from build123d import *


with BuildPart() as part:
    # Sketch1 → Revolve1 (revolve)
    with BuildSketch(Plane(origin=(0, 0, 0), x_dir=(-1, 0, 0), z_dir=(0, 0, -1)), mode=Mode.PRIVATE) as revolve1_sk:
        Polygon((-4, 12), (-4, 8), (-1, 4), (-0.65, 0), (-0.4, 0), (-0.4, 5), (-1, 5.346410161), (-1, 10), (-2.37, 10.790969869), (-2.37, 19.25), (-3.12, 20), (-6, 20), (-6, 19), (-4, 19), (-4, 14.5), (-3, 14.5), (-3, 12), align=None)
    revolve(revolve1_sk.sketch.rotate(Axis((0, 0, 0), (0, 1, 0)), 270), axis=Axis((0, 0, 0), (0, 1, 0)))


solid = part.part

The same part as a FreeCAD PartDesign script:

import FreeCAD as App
import Part
import Sketcher
Q = App.Units.Quantity


def add_polygon(sketch, points):
    """Adds a closed chain of lines whose ends are joined by coincident constraints."""
    first, n = sketch.GeometryCount, len(points)
    for a, b in zip(points, points[1:] + points[:1]):
        sketch.addGeometry(Part.LineSegment(App.Vector(*a, 0), App.Vector(*b, 0)), False)
    for i in range(n):
        sketch.addConstraint(Sketcher.Constraint("Coincident", first + i, 2, first + (i + 1) % n, 1))

doc = App.newDocument("Part")
params = doc.addObject("Spreadsheet::Sheet", "Params")
for row, (alias, value) in enumerate([
    ("sketch1_width", "2 mm"),
    ("sketch1_width2", "1 mm"),
    ("sketch1_height", "4 mm"),
    ("sketch1_height2", "5 mm"),
    ("sketch1_length", "5 mm"),
    ("revolution_angle", "360 deg"),
], start=1):
    params.set(f"A{row}", alias)
    params.set(f"B{row}", "=" + value)
    params.setAlias(f"B{row}", alias)

body = doc.addObject("PartDesign::Body", "Body")

sketch1 = doc.addObject("Sketcher::SketchObject", "Sketch")
body.addObject(sketch1)
sketch1.AttachmentSupport = (doc.XY_Plane, [""])
sketch1.MapMode = "FlatFace"
add_polygon(sketch1, [(4, 12), (4, 8), (1, 4), (0.65, 0), (0.4, 0), (0.4, 5), (1, 5.34641), (1, 10), (2.37, 10.79097), (2.37, 19.25), (3.12, 20), (6, 20), (6, 19), (4, 19), (4, 14.5), (3, 14.5), (3, 12)])
sketch1.addConstraint(Sketcher.Constraint("Vertical", 0))
sketch1.addConstraint(Sketcher.Constraint("Horizontal", 3))
sketch1.addConstraint(Sketcher.Constraint("Vertical", 4))
sketch1.addConstraint(Sketcher.Constraint("Vertical", 6))
sketch1.addConstraint(Sketcher.Constraint("Vertical", 8))
sketch1.addConstraint(Sketcher.Constraint("Horizontal", 10))
sketch1.addConstraint(Sketcher.Constraint("Vertical", 11))
sketch1.addConstraint(Sketcher.Constraint("Horizontal", 12))
sketch1.addConstraint(Sketcher.Constraint("Vertical", 13))
sketch1.addConstraint(Sketcher.Constraint("Horizontal", 14))
sketch1.addConstraint(Sketcher.Constraint("Vertical", 15))
sketch1.addConstraint(Sketcher.Constraint("Horizontal", 16))
sketch1.addConstraint(Sketcher.Constraint("PointOnObject", 2, 2, -1))
sketch1.addConstraint(Sketcher.Constraint("Parallel", 5, 7))
sketch1.addConstraint(Sketcher.Constraint("Vertical", 1, 2, 5, 2))
sketch1.addConstraint(Sketcher.Constraint("Vertical", 0, 2, 12, 2))
sketch1.addConstraint(Sketcher.Constraint("Equal", 16, 11))
sketch1.addConstraint(Sketcher.Constraint("DistanceX", 12, 2, 12, 1, Q("2 mm")))
sketch1.addConstraint(Sketcher.Constraint("DistanceX", 14, 2, 14, 1, Q("1 mm")))
sketch1.addConstraint(Sketcher.Constraint("DistanceY", 0, 2, 0, 1, Q("4 mm")))
sketch1.addConstraint(Sketcher.Constraint("DistanceY", 4, 1, 4, 2, Q("5 mm")))
sketch1.addConstraint(Sketcher.Constraint("Angle", 5, Q("30 deg")))
sketch1.addConstraint(Sketcher.Constraint("Angle", 9, Q("45 deg")))
sketch1.addConstraint(Sketcher.Constraint("Distance", 1, Q("5 mm")))
sketch1.addConstraint(Sketcher.Constraint("DistanceY", 13, 2, 13, 1, Q("4.5 mm")))
sketch1.addConstraint(Sketcher.Constraint("DistanceY", 15, 2, 15, 1, Q("2.5 mm")))
sketch1.addConstraint(Sketcher.Constraint("DistanceX", -1, 1, 0, 2, Q("4 mm")))
sketch1.addConstraint(Sketcher.Constraint("DistanceY", -1, 1, 0, 2, Q("8 mm")))
sketch1.addConstraint(Sketcher.Constraint("DistanceX", -1, 1, 1, 2, Q("1 mm")))
sketch1.addConstraint(Sketcher.Constraint("DistanceY", -1, 1, 6, 2, Q("10 mm")))
sketch1.addConstraint(Sketcher.Constraint("DistanceX", 3, 2, 3, 1, Q("0.25 mm")))
sketch1.addConstraint(Sketcher.Constraint("DistanceX", 10, 1, 10, 2, Q("2.88 mm")))
sketch1.addConstraint(Sketcher.Constraint("DistanceX", -1, 1, 3, 2, Q("0.4 mm")))
sketch1.addConstraint(Sketcher.Constraint("DistanceX", -1, 1, 7, 2, Q("2.37 mm")))
sketch1.setExpression("Constraints[34]", "Params.sketch1_width")
sketch1.setExpression("Constraints[35]", "Params.sketch1_width2")
sketch1.setExpression("Constraints[36]", "Params.sketch1_height")
sketch1.setExpression("Constraints[37]", "Params.sketch1_height2")
sketch1.setExpression("Constraints[40]", "Params.sketch1_length")
revolution = doc.addObject("PartDesign::Revolution", "Revolution")
body.addObject(revolution)
revolution.Profile = sketch1
revolution.ReferenceAxis = (sketch1, ["V_Axis"])
revolution.setExpression("Angle", "Params.revolution_angle")

doc.recompute()
